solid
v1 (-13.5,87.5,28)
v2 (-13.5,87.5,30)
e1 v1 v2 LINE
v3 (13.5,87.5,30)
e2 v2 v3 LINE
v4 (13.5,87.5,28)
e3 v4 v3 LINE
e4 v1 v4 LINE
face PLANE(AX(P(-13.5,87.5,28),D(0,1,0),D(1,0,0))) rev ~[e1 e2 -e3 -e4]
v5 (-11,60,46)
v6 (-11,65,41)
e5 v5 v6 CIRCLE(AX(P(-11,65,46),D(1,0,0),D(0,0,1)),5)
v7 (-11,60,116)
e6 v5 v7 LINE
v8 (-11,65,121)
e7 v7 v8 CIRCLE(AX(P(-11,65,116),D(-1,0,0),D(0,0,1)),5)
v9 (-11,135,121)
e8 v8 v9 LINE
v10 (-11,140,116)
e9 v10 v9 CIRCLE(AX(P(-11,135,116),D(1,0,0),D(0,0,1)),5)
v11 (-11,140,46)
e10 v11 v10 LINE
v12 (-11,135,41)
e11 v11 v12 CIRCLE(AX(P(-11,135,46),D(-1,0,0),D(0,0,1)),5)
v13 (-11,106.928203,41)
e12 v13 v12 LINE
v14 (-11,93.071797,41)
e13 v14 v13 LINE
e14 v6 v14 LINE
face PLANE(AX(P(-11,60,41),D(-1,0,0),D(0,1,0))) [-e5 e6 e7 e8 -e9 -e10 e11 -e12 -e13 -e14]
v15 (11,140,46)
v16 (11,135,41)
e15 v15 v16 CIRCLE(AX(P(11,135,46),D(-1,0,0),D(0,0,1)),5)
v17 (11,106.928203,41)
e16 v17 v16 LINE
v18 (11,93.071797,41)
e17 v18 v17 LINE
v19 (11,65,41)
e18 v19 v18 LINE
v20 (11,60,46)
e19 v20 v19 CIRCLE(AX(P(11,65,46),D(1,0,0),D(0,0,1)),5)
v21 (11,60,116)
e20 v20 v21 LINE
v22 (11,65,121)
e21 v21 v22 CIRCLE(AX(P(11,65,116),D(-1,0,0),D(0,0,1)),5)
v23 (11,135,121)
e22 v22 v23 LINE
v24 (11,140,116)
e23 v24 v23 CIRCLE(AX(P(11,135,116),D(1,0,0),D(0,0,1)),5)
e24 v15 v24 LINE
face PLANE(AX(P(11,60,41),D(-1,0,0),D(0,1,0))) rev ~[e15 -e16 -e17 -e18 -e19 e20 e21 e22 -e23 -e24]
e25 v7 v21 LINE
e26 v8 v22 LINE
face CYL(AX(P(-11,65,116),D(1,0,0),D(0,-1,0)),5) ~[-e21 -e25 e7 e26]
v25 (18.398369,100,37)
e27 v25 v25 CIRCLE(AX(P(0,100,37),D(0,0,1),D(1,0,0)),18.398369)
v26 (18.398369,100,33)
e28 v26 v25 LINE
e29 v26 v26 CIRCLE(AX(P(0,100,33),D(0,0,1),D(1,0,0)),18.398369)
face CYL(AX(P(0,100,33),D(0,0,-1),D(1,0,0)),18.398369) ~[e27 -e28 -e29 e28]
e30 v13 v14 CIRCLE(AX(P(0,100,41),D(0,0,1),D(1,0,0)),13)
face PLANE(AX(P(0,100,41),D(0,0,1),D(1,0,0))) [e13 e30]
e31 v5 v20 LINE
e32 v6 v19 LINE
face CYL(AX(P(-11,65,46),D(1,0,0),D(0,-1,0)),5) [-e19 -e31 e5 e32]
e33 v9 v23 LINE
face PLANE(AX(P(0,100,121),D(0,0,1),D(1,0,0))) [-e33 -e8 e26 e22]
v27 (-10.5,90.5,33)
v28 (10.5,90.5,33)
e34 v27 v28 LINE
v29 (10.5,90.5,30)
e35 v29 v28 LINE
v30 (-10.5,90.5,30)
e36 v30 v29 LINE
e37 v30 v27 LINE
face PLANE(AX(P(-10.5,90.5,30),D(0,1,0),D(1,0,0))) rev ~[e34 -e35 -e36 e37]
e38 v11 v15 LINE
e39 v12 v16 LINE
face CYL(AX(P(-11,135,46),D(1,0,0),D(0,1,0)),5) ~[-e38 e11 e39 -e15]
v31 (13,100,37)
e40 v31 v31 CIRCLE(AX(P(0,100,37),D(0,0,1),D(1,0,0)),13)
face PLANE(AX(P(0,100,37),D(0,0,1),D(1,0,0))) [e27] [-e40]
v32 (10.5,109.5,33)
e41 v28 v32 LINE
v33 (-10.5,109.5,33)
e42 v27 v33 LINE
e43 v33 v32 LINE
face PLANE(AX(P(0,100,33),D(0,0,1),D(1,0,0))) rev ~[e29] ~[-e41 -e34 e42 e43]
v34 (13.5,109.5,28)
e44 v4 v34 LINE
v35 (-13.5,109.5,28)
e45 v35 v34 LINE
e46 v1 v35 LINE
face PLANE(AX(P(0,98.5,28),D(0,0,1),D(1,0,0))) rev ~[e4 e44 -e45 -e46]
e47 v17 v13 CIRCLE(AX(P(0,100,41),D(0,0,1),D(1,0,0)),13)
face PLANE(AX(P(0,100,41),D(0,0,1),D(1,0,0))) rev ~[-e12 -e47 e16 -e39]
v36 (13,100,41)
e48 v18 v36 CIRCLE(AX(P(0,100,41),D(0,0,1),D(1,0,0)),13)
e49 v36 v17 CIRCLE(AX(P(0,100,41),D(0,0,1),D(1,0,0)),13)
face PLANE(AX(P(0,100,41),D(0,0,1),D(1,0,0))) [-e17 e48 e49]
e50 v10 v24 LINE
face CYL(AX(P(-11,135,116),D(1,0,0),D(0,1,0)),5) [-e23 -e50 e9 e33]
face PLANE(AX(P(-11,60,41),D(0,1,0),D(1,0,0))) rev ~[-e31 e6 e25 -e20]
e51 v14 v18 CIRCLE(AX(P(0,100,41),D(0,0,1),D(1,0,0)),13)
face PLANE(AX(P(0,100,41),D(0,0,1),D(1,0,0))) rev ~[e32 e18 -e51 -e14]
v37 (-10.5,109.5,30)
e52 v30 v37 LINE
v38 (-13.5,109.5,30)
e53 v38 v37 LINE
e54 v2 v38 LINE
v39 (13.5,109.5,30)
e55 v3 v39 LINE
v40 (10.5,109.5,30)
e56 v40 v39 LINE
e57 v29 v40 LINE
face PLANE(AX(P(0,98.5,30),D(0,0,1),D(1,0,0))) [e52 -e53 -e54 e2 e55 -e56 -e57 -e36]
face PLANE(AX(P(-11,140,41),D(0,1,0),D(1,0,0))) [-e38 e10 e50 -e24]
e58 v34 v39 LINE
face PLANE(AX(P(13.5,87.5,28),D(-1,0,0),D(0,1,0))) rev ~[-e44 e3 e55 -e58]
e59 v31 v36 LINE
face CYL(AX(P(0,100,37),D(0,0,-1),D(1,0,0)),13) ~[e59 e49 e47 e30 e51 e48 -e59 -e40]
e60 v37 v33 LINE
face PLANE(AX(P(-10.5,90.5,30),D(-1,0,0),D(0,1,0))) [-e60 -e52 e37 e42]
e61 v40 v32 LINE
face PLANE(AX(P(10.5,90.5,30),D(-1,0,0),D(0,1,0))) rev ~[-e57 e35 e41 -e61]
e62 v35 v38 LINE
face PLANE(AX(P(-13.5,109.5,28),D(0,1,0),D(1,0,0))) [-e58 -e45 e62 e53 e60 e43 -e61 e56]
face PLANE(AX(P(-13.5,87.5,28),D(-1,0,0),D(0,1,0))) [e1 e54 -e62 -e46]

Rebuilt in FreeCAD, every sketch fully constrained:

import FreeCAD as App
import Part
import Sketcher
Q = App.Units.Quantity


def edges_at(feature, points):
    """Names of the edges that pass closest to the given points."""
    edges = feature.Shape.Edges
    near = lambda p: min(range(len(edges)), key=lambda i: edges[i].distToShape(Part.Vertex(*p))[0])
    return sorted({f"Edge{near(p) + 1}" for p in points})

doc = App.newDocument("Part")
params = doc.addObject("Spreadsheet::Sheet", "Params")
for row, (alias, value) in enumerate([
    ("sketch1_width", "27 mm"),
    ("sketch1_height", "22 mm"),
    ("pad1_length", "2 mm"),
    ("sketch2_width", "21 mm"),
    ("sketch2_height", "19 mm"),
    ("pad2_length", "3 mm"),
    ("pad3_length", "4 mm"),
    ("sketch4_diameter", "26 mm"),
    ("pad4_length", "4 mm"),
    ("sketch5_width", "22 mm"),
    ("sketch5_height", "80 mm"),
    ("pad5_length", "80 mm"),
    ("fillet_radius", "5 mm"),
], start=1):
    params.set(f"A{row}", alias)
    params.set(f"B{row}", "=" + value)
    params.setAlias(f"B{row}", alias)

body = doc.addObject("PartDesign::Body", "Body")

# Sketch on XY plane
sketch1 = body.newObject("Sketcher::SketchObject", "Sketch")
sketch1.AttachmentSupport = (doc.getObject("XY_Plane"), [""])
sketch1.MapMode = "FlatFace"
sketch1.addGeometry([
    Part.LineSegment(App.Vector(-14, 10, 0), App.Vector(-14, -12, 0)),
    Part.LineSegment(App.Vector(-14, -12, 0), App.Vector(14, -12, 0)),
    Part.LineSegment(App.Vector(14, -12, 0), App.Vector(14, 10, 0)),
    Part.LineSegment(App.Vector(14, 10, 0), App.Vector(-14, 10, 0)),
], False)
sketch1.addConstraint([
    Sketcher.Constraint("Coincident", 0, 2, 1, 1),
    Sketcher.Constraint("Coincident", 1, 2, 2, 1),
    Sketcher.Constraint("Coincident", 2, 2, 3, 1),
    Sketcher.Constraint("Coincident", 3, 2, 0, 1),
    Sketcher.Constraint("Vertical", 0),
    Sketcher.Constraint("Horizontal", 1),
    Sketcher.Constraint("Vertical", 2),
    Sketcher.Constraint("Horizontal", 3),
    Sketcher.Constraint("DistanceX", 1, 1, 1, 2, Q("27 mm")),
    Sketcher.Constraint("DistanceY", 0, 2, 0, 1, Q("22 mm")),
    Sketcher.Constraint("DistanceX", 0, 2, -1, 1, Q("13.5 mm")),
    Sketcher.Constraint("DistanceY", 0, 2, -1, 1, Q("12.5 mm")),
])
sketch1.setExpression("Constraints[8]", "Params.sketch1_width")
sketch1.setExpression("Constraints[9]", "Params.sketch1_height")
pad1 = body.newObject("PartDesign::Pad", "Pad")
pad1.Profile = sketch1
pad1.setExpression("Length", "Params.pad1_length")

# Sketch on XY plane
sketch2 = body.newObject("Sketcher::SketchObject", "Sketch001")
sketch2.AttachmentSupport = (doc.getObject("XY_Plane"), [""])
sketch2.MapMode = "FlatFace"
sketch2.AttachmentOffset = App.Placement(App.Vector(0, 0, 2), App.Rotation())
sketch2.addGeometry([
    Part.LineSegment(App.Vector(-10, 10, 0), App.Vector(-10, -10, 0)),
    Part.LineSegment(App.Vector(-10, -10, 0), App.Vector(10, -10, 0)),
    Part.LineSegment(App.Vector(10, -10, 0), App.Vector(10, 10, 0)),
    Part.LineSegment(App.Vector(10, 10, 0), App.Vector(-10, 10, 0)),
], False)
sketch2.addConstraint([
    Sketcher.Constraint("Coincident", 0, 2, 1, 1),
    Sketcher.Constraint("Coincident", 1, 2, 2, 1),
    Sketcher.Constraint("Coincident", 2, 2, 3, 1),
    Sketcher.Constraint("Coincident", 3, 2, 0, 1),
    Sketcher.Constraint("Vertical", 0),
    Sketcher.Constraint("Horizontal", 1),
    Sketcher.Constraint("Vertical", 2),
    Sketcher.Constraint("Horizontal", 3),
    Sketcher.Constraint("Symmetric", 0, 2, 2, 2, -1, 1),
    Sketcher.Constraint("DistanceX", 1, 1, 1, 2, Q("21 mm")),
    Sketcher.Constraint("DistanceY", 0, 2, 0, 1, Q("19 mm")),
])
sketch2.setExpression("Constraints[9]", "Params.sketch2_width")
sketch2.setExpression("Constraints[10]", "Params.sketch2_height")
pad2 = body.newObject("PartDesign::Pad", "Pad001")
pad2.Profile = sketch2
pad2.setExpression("Length", "Params.pad2_length")

# Sketch on XY plane
sketch3 = body.newObject("Sketcher::SketchObject", "Sketch002")
sketch3.AttachmentSupport = (doc.getObject("XY_Plane"), [""])
sketch3.MapMode = "FlatFace"
sketch3.AttachmentOffset = App.Placement(App.Vector(0, 0, 5), App.Rotation())
sketch3.addGeometry(Part.Circle(App.Vector(0, 0, 0), App.Vector(0, 0, 1), 18), False)
sketch3.addConstraint([
    Sketcher.Constraint("Coincident", 0, 3, -1, 1),
    Sketcher.Constraint("Diameter", 0, Q("36.796738 mm")),
])
pad3 = body.newObject("PartDesign::Pad", "Pad002")
pad3.Profile = sketch3
pad3.setExpression("Length", "Params.pad3_length")

# Sketch on XY plane
sketch4 = body.newObject("Sketcher::SketchObject", "Sketch003")
sketch4.AttachmentSupport = (doc.getObject("XY_Plane"), [""])
sketch4.MapMode = "FlatFace"
sketch4.AttachmentOffset = App.Placement(App.Vector(0, 0, 9), App.Rotation())
sketch4.addGeometry(Part.Circle(App.Vector(0, 0, 0), App.Vector(0, 0, 1), 13), False)
sketch4.addConstraint([
    Sketcher.Constraint("Coincident", 0, 3, -1, 1),
    Sketcher.Constraint("Diameter", 0, Q("26 mm")),
])
sketch4.setExpression("Constraints[1]", "Params.sketch4_diameter")
pad4 = body.newObject("PartDesign::Pad", "Pad003")
pad4.Profile = sketch4
pad4.setExpression("Length", "Params.pad4_length")

# Sketch on XY plane
sketch5 = body.newObject("Sketcher::SketchObject", "Sketch004")
sketch5.AttachmentSupport = (doc.getObject("XY_Plane"), [""])
sketch5.MapMode = "FlatFace"
sketch5.AttachmentOffset = App.Placement(App.Vector(0, 0, 13), App.Rotation())
sketch5.addGeometry([
    Part.LineSegment(App.Vector(-11, 40, 0), App.Vector(-11, -40, 0)),
    Part.LineSegment(App.Vector(-11, -40, 0), App.Vector(11, -40, 0)),
    Part.LineSegment(App.Vector(11, -40, 0), App.Vector(11, 40, 0)),
    Part.LineSegment(App.Vector(11, 40, 0), App.Vector(-11, 40, 0)),
], False)
sketch5.addConstraint([
    Sketcher.Constraint("Coincident", 0, 2, 1, 1),
    Sketcher.Constraint("Coincident", 1, 2, 2, 1),
    Sketcher.Constraint("Coincident", 2, 2, 3, 1),
    Sketcher.Constraint("Coincident", 3, 2, 0, 1),
    Sketcher.Constraint("Vertical", 0),
    Sketcher.Constraint("Horizontal", 1),
    Sketcher.Constraint("Vertical", 2),
    Sketcher.Constraint("Horizontal", 3),
    Sketcher.Constraint("Symmetric", 0, 2, 2, 2, -1, 1),
    Sketcher.Constraint("DistanceX", 1, 1, 1, 2, Q("22 mm")),
    Sketcher.Constraint("DistanceY", 0, 2, 0, 1, Q("80 mm")),
])
sketch5.setExpression("Constraints[9]", "Params.sketch5_width")
sketch5.setExpression("Constraints[10]", "Params.sketch5_height")
pad5 = body.newObject("PartDesign::Pad", "Pad004")
pad5.Profile = sketch5
pad5.setExpression("Length", "Params.pad5_length")
doc.recompute()

fillet = body.newObject("PartDesign::Fillet", "Fillet")
fillet.Base = (pad5, edges_at(pad5, [
    (0, -40, 93),
    (0, 40, 93),
    (0, -40, 13),
    (0, 40, 13),
]))
fillet.setExpression("Radius", "Params.fillet_radius")
body2 = doc.addObject("PartDesign::Body", "Body001")
doc.recompute()

body.Placement = App.Placement(App.Vector(0, 100, 28), App.Rotation(App.Vector(0, 0, 1), 0))
boolean = body2.newObject("PartDesign::Boolean", "Boolean")
boolean.Type = "Fuse"
boolean.addObjects([body])

doc.recompute()
